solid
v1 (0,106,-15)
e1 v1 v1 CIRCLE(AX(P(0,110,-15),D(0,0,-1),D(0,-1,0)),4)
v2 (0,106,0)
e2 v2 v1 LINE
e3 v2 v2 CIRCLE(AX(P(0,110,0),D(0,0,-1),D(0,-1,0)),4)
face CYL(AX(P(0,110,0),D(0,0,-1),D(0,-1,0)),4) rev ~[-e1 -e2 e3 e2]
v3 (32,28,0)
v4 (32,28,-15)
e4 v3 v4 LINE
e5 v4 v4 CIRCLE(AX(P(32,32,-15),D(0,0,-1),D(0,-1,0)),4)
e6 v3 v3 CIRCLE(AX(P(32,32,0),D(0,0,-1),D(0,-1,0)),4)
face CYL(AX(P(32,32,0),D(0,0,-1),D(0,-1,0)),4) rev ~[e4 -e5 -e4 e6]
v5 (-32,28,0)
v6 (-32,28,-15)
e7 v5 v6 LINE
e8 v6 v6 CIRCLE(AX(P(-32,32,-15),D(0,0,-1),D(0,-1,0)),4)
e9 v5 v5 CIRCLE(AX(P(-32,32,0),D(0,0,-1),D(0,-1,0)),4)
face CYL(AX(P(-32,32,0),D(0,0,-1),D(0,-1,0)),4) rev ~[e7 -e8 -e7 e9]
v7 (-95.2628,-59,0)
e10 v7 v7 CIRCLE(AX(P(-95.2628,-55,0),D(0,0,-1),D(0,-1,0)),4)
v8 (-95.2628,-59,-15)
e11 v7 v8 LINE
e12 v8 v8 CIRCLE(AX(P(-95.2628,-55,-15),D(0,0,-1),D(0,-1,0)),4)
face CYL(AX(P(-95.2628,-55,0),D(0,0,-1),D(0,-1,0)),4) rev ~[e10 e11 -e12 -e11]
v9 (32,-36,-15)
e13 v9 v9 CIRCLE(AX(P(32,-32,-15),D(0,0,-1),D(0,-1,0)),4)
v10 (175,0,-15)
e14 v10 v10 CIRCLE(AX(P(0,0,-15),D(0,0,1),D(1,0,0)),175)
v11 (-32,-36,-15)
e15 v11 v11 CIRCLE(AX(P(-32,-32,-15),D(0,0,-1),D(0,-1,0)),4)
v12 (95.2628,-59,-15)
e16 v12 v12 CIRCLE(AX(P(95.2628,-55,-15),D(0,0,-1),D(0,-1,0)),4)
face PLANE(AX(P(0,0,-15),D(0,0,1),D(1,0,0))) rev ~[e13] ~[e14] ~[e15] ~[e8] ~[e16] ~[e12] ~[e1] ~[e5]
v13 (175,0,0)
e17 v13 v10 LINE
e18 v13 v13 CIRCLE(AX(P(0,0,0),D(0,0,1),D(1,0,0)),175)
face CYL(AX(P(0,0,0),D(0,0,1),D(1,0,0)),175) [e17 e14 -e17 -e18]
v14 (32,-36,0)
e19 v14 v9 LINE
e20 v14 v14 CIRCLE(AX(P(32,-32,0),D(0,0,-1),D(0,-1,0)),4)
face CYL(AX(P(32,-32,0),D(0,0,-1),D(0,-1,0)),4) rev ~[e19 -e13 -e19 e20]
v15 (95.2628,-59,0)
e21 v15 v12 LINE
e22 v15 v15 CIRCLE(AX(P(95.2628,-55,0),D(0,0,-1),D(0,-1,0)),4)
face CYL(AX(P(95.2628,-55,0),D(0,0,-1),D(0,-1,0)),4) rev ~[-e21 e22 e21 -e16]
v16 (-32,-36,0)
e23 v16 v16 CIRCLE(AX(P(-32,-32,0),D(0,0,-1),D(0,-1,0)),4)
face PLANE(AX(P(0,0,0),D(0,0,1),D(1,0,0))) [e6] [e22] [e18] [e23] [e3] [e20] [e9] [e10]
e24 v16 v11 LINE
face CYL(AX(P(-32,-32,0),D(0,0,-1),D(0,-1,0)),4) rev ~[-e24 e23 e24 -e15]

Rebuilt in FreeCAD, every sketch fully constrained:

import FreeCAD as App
import Part
import Sketcher

doc = App.newDocument("Part")
params = doc.addObject("Spreadsheet::Sheet", "Params")
for row, (alias, value) in enumerate([
    ("sketch1_diameter", "350 mm"),
    ("pad1_length", "15 mm"),
    ("sketch2_diameter", "8 mm"),
    ("hole_diameter", "8 mm"),
], start=1):
    params.set(f"A{row}", alias)
    params.set(f"B{row}", "=" + value)
    params.setAlias(f"B{row}", alias)

body = doc.addObject("PartDesign::Body", "Body")

# Sketch on XY plane
sketch1 = body.newObject("Sketcher::SketchObject", "Sketch")
sketch1.AttachmentSupport = (doc.getObject("XY_Plane"), [""])
sketch1.MapMode = "FlatFace"
sketch1.addGeometry(Part.Circle(App.Vector(0, 0, 0), App.Vector(0, 0, 1), 175), False)
sketch1.addConstraint([
    Sketcher.Constraint("Coincident", 0, 3, -1, 1),
    Sketcher.Constraint("Diameter", 0, 350.0),
])
sketch1.setExpression("Constraints[1]", "Params.sketch1_diameter")
pad1 = body.newObject("PartDesign::Pad", "Pad")
pad1.Profile = sketch1
pad1.setExpression("Length", "Params.pad1_length")
pad1.Reversed = True

# Sketch on XY plane
sketch2 = body.newObject("Sketcher::SketchObject", "Sketch001")
sketch2.AttachmentSupport = (doc.getObject("XY_Plane"), [""])
sketch2.MapMode = "FlatFace"
sketch2.addGeometry([
    Part.Circle(App.Vector(32, 32, 0), App.Vector(0, 0, 1), 4),  # 0
    Part.Circle(App.Vector(-32, 32, 0), App.Vector(0, 0, 1), 4),  # 1
    Part.Circle(App.Vector(-32, -32, 0), App.Vector(0, 0, 1), 4),  # 2
    Part.Circle(App.Vector(32, -32, 0), App.Vector(0, 0, 1), 4),  # 3
    Part.Circle(App.Vector(0, 110, 0), App.Vector(0, 0, 1), 4),  # 4
    Part.Circle(App.Vector(-95.3, -55, 0), App.Vector(0, 0, 1), 4),  # 5
    Part.Circle(App.Vector(95.3, -55, 0), App.Vector(0, 0, 1), 4),  # 6
], False)
sketch2.addConstraint([
    Sketcher.Constraint("Equal", 0, 1),
    Sketcher.Constraint("Equal", 1, 2),
    Sketcher.Constraint("Equal", 2, 3),
    Sketcher.Constraint("Equal", 3, 4),
    Sketcher.Constraint("Equal", 4, 5),
    Sketcher.Constraint("Equal", 5, 6),
    Sketcher.Constraint("Symmetric", 0, 3, 2, 3, -1, 1),
    Sketcher.Constraint("Symmetric", 1, 3, 3, 3, -1, 1),
    Sketcher.Constraint("Symmetric", 0, 3, 1, 3, -2),
    Sketcher.Constraint("Symmetric", 5, 3, 6, 3, -2),
    Sketcher.Constraint("PointOnObject", 4, 3, -2),
    Sketcher.Constraint("Diameter", 0, 8.0),
    Sketcher.Constraint("DistanceX", -1, 1, 0, 3, 32.0),
    Sketcher.Constraint("DistanceY", -1, 1, 0, 3, 32.0),
    Sketcher.Constraint("DistanceY", -1, 1, 4, 3, 110.0),
    Sketcher.Constraint("DistanceY", 5, 3, -1, 1, 55.0),
    Sketcher.Constraint("DistanceX", 5, 3, -1, 1, 95.2628),
])
sketch2.setExpression("Constraints[11]", "Params.sketch2_diameter")
doc.recompute()
hole = body.newObject("PartDesign::Hole", "Hole")
hole.Profile = sketch2
hole.ThreadType = "None"
hole.setExpression("Diameter", "Params.hole_diameter")
hole.DepthType = "ThroughAll"

doc.recompute()
